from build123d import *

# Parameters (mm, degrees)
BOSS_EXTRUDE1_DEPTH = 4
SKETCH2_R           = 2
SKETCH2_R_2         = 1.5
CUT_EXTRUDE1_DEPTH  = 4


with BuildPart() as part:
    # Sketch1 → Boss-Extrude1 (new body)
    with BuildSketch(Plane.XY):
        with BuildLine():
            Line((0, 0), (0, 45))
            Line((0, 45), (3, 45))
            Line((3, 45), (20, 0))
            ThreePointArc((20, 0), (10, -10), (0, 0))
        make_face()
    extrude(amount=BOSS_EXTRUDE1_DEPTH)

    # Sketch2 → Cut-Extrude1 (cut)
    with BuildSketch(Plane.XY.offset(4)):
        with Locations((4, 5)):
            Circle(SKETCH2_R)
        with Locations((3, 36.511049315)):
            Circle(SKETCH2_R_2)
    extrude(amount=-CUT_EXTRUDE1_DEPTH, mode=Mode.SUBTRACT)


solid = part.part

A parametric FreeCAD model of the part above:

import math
import FreeCAD as App
import Part
import Sketcher

doc = App.newDocument("Part")
body = doc.addObject("PartDesign::Body", "Body")

# Sketch on XY plane
sketch1 = body.newObject("Sketcher::SketchObject", "Sketch")
sketch1.AttachmentSupport = (doc.getObject("XY_Plane"), [""])
sketch1.MapMode = "FlatFace"
sketch1.addGeometry(Part.LineSegment(App.Vector(0, 45, 0), App.Vector(0, 0, 0)), False)
sketch1.addGeometry(Part.ArcOfCircle(Part.Circle(App.Vector(10, 0, 0), App.Vector(0, 0, 1), 10), math.radians(180), math.radians(360)), False)
sketch1.addGeometry(Part.LineSegment(App.Vector(20, 0, 0), App.Vector(3, 45, 0)), False)
sketch1.addGeometry(Part.LineSegment(App.Vector(3, 45, 0), App.Vector(0, 45, 0)), False)
sketch1.addConstraint(Sketcher.Constraint("Tangent", 0, 2, 1, 1))
sketch1.addConstraint(Sketcher.Constraint("Coincident", 1, 2, 2, 1))
sketch1.addConstraint(Sketcher.Constraint("Coincident", 2, 2, 3, 1))
sketch1.addConstraint(Sketcher.Constraint("Coincident", 3, 2, 0, 1))
sketch1.addConstraint(Sketcher.Constraint("Vertical", 0))
sketch1.addConstraint(Sketcher.Constraint("Horizontal", 3))
sketch1.addConstraint(Sketcher.Constraint("Coincident", 0, 2, -1, 1))
sketch1.addConstraint(Sketcher.Constraint("PointOnObject", 1, 2, -1))
sketch1.addConstraint(Sketcher.Constraint("Radius", 1, 10.0))
sketch1.addConstraint(Sketcher.Constraint("DistanceX", 3, 2, 3, 1, 3.0))
sketch1.addConstraint(Sketcher.Constraint("DistanceY", 0, 2, 0, 1, 45.0))
pad1 = body.newObject("PartDesign::Pad", "Pad")
pad1.Profile = sketch1
pad1.Length = 4

# Sketch on XY plane
sketch2 = body.newObject("Sketcher::SketchObject", "Sketch001")
sketch2.AttachmentSupport = (doc.getObject("XY_Plane"), [""])
sketch2.MapMode = "FlatFace"
sketch2.AttachmentOffset = App.Placement(App.Vector(0, 0, 4), App.Rotation())
sketch2.addGeometry(Part.Circle(App.Vector(4, 5, 0), App.Vector(0, 0, 1), 2), False)
sketch2.addGeometry(Part.Circle(App.Vector(3, 36.511049, 0), App.Vector(0, 0, 1), 1.5), False)
sketch2.addConstraint(Sketcher.Constraint("Diameter", 0, 4.0))
sketch2.addConstraint(Sketcher.Constraint("Diameter", 1, 3.0))
sketch2.addConstraint(Sketcher.Constraint("DistanceX", -1, 1, 0, 3, 4.0))
sketch2.addConstraint(Sketcher.Constraint("DistanceY", -1, 1, 0, 3, 5.0))
sketch2.addConstraint(Sketcher.Constraint("DistanceX", -1, 1, 1, 3, 3.0))
sketch2.addConstraint(Sketcher.Constraint("DistanceY", -1, 1, 1, 3, 36.511049))
pocket1 = body.newObject("PartDesign::Pocket", "Pocket")
pocket1.Profile = sketch2
pocket1.Length = 4

doc.recompute()
